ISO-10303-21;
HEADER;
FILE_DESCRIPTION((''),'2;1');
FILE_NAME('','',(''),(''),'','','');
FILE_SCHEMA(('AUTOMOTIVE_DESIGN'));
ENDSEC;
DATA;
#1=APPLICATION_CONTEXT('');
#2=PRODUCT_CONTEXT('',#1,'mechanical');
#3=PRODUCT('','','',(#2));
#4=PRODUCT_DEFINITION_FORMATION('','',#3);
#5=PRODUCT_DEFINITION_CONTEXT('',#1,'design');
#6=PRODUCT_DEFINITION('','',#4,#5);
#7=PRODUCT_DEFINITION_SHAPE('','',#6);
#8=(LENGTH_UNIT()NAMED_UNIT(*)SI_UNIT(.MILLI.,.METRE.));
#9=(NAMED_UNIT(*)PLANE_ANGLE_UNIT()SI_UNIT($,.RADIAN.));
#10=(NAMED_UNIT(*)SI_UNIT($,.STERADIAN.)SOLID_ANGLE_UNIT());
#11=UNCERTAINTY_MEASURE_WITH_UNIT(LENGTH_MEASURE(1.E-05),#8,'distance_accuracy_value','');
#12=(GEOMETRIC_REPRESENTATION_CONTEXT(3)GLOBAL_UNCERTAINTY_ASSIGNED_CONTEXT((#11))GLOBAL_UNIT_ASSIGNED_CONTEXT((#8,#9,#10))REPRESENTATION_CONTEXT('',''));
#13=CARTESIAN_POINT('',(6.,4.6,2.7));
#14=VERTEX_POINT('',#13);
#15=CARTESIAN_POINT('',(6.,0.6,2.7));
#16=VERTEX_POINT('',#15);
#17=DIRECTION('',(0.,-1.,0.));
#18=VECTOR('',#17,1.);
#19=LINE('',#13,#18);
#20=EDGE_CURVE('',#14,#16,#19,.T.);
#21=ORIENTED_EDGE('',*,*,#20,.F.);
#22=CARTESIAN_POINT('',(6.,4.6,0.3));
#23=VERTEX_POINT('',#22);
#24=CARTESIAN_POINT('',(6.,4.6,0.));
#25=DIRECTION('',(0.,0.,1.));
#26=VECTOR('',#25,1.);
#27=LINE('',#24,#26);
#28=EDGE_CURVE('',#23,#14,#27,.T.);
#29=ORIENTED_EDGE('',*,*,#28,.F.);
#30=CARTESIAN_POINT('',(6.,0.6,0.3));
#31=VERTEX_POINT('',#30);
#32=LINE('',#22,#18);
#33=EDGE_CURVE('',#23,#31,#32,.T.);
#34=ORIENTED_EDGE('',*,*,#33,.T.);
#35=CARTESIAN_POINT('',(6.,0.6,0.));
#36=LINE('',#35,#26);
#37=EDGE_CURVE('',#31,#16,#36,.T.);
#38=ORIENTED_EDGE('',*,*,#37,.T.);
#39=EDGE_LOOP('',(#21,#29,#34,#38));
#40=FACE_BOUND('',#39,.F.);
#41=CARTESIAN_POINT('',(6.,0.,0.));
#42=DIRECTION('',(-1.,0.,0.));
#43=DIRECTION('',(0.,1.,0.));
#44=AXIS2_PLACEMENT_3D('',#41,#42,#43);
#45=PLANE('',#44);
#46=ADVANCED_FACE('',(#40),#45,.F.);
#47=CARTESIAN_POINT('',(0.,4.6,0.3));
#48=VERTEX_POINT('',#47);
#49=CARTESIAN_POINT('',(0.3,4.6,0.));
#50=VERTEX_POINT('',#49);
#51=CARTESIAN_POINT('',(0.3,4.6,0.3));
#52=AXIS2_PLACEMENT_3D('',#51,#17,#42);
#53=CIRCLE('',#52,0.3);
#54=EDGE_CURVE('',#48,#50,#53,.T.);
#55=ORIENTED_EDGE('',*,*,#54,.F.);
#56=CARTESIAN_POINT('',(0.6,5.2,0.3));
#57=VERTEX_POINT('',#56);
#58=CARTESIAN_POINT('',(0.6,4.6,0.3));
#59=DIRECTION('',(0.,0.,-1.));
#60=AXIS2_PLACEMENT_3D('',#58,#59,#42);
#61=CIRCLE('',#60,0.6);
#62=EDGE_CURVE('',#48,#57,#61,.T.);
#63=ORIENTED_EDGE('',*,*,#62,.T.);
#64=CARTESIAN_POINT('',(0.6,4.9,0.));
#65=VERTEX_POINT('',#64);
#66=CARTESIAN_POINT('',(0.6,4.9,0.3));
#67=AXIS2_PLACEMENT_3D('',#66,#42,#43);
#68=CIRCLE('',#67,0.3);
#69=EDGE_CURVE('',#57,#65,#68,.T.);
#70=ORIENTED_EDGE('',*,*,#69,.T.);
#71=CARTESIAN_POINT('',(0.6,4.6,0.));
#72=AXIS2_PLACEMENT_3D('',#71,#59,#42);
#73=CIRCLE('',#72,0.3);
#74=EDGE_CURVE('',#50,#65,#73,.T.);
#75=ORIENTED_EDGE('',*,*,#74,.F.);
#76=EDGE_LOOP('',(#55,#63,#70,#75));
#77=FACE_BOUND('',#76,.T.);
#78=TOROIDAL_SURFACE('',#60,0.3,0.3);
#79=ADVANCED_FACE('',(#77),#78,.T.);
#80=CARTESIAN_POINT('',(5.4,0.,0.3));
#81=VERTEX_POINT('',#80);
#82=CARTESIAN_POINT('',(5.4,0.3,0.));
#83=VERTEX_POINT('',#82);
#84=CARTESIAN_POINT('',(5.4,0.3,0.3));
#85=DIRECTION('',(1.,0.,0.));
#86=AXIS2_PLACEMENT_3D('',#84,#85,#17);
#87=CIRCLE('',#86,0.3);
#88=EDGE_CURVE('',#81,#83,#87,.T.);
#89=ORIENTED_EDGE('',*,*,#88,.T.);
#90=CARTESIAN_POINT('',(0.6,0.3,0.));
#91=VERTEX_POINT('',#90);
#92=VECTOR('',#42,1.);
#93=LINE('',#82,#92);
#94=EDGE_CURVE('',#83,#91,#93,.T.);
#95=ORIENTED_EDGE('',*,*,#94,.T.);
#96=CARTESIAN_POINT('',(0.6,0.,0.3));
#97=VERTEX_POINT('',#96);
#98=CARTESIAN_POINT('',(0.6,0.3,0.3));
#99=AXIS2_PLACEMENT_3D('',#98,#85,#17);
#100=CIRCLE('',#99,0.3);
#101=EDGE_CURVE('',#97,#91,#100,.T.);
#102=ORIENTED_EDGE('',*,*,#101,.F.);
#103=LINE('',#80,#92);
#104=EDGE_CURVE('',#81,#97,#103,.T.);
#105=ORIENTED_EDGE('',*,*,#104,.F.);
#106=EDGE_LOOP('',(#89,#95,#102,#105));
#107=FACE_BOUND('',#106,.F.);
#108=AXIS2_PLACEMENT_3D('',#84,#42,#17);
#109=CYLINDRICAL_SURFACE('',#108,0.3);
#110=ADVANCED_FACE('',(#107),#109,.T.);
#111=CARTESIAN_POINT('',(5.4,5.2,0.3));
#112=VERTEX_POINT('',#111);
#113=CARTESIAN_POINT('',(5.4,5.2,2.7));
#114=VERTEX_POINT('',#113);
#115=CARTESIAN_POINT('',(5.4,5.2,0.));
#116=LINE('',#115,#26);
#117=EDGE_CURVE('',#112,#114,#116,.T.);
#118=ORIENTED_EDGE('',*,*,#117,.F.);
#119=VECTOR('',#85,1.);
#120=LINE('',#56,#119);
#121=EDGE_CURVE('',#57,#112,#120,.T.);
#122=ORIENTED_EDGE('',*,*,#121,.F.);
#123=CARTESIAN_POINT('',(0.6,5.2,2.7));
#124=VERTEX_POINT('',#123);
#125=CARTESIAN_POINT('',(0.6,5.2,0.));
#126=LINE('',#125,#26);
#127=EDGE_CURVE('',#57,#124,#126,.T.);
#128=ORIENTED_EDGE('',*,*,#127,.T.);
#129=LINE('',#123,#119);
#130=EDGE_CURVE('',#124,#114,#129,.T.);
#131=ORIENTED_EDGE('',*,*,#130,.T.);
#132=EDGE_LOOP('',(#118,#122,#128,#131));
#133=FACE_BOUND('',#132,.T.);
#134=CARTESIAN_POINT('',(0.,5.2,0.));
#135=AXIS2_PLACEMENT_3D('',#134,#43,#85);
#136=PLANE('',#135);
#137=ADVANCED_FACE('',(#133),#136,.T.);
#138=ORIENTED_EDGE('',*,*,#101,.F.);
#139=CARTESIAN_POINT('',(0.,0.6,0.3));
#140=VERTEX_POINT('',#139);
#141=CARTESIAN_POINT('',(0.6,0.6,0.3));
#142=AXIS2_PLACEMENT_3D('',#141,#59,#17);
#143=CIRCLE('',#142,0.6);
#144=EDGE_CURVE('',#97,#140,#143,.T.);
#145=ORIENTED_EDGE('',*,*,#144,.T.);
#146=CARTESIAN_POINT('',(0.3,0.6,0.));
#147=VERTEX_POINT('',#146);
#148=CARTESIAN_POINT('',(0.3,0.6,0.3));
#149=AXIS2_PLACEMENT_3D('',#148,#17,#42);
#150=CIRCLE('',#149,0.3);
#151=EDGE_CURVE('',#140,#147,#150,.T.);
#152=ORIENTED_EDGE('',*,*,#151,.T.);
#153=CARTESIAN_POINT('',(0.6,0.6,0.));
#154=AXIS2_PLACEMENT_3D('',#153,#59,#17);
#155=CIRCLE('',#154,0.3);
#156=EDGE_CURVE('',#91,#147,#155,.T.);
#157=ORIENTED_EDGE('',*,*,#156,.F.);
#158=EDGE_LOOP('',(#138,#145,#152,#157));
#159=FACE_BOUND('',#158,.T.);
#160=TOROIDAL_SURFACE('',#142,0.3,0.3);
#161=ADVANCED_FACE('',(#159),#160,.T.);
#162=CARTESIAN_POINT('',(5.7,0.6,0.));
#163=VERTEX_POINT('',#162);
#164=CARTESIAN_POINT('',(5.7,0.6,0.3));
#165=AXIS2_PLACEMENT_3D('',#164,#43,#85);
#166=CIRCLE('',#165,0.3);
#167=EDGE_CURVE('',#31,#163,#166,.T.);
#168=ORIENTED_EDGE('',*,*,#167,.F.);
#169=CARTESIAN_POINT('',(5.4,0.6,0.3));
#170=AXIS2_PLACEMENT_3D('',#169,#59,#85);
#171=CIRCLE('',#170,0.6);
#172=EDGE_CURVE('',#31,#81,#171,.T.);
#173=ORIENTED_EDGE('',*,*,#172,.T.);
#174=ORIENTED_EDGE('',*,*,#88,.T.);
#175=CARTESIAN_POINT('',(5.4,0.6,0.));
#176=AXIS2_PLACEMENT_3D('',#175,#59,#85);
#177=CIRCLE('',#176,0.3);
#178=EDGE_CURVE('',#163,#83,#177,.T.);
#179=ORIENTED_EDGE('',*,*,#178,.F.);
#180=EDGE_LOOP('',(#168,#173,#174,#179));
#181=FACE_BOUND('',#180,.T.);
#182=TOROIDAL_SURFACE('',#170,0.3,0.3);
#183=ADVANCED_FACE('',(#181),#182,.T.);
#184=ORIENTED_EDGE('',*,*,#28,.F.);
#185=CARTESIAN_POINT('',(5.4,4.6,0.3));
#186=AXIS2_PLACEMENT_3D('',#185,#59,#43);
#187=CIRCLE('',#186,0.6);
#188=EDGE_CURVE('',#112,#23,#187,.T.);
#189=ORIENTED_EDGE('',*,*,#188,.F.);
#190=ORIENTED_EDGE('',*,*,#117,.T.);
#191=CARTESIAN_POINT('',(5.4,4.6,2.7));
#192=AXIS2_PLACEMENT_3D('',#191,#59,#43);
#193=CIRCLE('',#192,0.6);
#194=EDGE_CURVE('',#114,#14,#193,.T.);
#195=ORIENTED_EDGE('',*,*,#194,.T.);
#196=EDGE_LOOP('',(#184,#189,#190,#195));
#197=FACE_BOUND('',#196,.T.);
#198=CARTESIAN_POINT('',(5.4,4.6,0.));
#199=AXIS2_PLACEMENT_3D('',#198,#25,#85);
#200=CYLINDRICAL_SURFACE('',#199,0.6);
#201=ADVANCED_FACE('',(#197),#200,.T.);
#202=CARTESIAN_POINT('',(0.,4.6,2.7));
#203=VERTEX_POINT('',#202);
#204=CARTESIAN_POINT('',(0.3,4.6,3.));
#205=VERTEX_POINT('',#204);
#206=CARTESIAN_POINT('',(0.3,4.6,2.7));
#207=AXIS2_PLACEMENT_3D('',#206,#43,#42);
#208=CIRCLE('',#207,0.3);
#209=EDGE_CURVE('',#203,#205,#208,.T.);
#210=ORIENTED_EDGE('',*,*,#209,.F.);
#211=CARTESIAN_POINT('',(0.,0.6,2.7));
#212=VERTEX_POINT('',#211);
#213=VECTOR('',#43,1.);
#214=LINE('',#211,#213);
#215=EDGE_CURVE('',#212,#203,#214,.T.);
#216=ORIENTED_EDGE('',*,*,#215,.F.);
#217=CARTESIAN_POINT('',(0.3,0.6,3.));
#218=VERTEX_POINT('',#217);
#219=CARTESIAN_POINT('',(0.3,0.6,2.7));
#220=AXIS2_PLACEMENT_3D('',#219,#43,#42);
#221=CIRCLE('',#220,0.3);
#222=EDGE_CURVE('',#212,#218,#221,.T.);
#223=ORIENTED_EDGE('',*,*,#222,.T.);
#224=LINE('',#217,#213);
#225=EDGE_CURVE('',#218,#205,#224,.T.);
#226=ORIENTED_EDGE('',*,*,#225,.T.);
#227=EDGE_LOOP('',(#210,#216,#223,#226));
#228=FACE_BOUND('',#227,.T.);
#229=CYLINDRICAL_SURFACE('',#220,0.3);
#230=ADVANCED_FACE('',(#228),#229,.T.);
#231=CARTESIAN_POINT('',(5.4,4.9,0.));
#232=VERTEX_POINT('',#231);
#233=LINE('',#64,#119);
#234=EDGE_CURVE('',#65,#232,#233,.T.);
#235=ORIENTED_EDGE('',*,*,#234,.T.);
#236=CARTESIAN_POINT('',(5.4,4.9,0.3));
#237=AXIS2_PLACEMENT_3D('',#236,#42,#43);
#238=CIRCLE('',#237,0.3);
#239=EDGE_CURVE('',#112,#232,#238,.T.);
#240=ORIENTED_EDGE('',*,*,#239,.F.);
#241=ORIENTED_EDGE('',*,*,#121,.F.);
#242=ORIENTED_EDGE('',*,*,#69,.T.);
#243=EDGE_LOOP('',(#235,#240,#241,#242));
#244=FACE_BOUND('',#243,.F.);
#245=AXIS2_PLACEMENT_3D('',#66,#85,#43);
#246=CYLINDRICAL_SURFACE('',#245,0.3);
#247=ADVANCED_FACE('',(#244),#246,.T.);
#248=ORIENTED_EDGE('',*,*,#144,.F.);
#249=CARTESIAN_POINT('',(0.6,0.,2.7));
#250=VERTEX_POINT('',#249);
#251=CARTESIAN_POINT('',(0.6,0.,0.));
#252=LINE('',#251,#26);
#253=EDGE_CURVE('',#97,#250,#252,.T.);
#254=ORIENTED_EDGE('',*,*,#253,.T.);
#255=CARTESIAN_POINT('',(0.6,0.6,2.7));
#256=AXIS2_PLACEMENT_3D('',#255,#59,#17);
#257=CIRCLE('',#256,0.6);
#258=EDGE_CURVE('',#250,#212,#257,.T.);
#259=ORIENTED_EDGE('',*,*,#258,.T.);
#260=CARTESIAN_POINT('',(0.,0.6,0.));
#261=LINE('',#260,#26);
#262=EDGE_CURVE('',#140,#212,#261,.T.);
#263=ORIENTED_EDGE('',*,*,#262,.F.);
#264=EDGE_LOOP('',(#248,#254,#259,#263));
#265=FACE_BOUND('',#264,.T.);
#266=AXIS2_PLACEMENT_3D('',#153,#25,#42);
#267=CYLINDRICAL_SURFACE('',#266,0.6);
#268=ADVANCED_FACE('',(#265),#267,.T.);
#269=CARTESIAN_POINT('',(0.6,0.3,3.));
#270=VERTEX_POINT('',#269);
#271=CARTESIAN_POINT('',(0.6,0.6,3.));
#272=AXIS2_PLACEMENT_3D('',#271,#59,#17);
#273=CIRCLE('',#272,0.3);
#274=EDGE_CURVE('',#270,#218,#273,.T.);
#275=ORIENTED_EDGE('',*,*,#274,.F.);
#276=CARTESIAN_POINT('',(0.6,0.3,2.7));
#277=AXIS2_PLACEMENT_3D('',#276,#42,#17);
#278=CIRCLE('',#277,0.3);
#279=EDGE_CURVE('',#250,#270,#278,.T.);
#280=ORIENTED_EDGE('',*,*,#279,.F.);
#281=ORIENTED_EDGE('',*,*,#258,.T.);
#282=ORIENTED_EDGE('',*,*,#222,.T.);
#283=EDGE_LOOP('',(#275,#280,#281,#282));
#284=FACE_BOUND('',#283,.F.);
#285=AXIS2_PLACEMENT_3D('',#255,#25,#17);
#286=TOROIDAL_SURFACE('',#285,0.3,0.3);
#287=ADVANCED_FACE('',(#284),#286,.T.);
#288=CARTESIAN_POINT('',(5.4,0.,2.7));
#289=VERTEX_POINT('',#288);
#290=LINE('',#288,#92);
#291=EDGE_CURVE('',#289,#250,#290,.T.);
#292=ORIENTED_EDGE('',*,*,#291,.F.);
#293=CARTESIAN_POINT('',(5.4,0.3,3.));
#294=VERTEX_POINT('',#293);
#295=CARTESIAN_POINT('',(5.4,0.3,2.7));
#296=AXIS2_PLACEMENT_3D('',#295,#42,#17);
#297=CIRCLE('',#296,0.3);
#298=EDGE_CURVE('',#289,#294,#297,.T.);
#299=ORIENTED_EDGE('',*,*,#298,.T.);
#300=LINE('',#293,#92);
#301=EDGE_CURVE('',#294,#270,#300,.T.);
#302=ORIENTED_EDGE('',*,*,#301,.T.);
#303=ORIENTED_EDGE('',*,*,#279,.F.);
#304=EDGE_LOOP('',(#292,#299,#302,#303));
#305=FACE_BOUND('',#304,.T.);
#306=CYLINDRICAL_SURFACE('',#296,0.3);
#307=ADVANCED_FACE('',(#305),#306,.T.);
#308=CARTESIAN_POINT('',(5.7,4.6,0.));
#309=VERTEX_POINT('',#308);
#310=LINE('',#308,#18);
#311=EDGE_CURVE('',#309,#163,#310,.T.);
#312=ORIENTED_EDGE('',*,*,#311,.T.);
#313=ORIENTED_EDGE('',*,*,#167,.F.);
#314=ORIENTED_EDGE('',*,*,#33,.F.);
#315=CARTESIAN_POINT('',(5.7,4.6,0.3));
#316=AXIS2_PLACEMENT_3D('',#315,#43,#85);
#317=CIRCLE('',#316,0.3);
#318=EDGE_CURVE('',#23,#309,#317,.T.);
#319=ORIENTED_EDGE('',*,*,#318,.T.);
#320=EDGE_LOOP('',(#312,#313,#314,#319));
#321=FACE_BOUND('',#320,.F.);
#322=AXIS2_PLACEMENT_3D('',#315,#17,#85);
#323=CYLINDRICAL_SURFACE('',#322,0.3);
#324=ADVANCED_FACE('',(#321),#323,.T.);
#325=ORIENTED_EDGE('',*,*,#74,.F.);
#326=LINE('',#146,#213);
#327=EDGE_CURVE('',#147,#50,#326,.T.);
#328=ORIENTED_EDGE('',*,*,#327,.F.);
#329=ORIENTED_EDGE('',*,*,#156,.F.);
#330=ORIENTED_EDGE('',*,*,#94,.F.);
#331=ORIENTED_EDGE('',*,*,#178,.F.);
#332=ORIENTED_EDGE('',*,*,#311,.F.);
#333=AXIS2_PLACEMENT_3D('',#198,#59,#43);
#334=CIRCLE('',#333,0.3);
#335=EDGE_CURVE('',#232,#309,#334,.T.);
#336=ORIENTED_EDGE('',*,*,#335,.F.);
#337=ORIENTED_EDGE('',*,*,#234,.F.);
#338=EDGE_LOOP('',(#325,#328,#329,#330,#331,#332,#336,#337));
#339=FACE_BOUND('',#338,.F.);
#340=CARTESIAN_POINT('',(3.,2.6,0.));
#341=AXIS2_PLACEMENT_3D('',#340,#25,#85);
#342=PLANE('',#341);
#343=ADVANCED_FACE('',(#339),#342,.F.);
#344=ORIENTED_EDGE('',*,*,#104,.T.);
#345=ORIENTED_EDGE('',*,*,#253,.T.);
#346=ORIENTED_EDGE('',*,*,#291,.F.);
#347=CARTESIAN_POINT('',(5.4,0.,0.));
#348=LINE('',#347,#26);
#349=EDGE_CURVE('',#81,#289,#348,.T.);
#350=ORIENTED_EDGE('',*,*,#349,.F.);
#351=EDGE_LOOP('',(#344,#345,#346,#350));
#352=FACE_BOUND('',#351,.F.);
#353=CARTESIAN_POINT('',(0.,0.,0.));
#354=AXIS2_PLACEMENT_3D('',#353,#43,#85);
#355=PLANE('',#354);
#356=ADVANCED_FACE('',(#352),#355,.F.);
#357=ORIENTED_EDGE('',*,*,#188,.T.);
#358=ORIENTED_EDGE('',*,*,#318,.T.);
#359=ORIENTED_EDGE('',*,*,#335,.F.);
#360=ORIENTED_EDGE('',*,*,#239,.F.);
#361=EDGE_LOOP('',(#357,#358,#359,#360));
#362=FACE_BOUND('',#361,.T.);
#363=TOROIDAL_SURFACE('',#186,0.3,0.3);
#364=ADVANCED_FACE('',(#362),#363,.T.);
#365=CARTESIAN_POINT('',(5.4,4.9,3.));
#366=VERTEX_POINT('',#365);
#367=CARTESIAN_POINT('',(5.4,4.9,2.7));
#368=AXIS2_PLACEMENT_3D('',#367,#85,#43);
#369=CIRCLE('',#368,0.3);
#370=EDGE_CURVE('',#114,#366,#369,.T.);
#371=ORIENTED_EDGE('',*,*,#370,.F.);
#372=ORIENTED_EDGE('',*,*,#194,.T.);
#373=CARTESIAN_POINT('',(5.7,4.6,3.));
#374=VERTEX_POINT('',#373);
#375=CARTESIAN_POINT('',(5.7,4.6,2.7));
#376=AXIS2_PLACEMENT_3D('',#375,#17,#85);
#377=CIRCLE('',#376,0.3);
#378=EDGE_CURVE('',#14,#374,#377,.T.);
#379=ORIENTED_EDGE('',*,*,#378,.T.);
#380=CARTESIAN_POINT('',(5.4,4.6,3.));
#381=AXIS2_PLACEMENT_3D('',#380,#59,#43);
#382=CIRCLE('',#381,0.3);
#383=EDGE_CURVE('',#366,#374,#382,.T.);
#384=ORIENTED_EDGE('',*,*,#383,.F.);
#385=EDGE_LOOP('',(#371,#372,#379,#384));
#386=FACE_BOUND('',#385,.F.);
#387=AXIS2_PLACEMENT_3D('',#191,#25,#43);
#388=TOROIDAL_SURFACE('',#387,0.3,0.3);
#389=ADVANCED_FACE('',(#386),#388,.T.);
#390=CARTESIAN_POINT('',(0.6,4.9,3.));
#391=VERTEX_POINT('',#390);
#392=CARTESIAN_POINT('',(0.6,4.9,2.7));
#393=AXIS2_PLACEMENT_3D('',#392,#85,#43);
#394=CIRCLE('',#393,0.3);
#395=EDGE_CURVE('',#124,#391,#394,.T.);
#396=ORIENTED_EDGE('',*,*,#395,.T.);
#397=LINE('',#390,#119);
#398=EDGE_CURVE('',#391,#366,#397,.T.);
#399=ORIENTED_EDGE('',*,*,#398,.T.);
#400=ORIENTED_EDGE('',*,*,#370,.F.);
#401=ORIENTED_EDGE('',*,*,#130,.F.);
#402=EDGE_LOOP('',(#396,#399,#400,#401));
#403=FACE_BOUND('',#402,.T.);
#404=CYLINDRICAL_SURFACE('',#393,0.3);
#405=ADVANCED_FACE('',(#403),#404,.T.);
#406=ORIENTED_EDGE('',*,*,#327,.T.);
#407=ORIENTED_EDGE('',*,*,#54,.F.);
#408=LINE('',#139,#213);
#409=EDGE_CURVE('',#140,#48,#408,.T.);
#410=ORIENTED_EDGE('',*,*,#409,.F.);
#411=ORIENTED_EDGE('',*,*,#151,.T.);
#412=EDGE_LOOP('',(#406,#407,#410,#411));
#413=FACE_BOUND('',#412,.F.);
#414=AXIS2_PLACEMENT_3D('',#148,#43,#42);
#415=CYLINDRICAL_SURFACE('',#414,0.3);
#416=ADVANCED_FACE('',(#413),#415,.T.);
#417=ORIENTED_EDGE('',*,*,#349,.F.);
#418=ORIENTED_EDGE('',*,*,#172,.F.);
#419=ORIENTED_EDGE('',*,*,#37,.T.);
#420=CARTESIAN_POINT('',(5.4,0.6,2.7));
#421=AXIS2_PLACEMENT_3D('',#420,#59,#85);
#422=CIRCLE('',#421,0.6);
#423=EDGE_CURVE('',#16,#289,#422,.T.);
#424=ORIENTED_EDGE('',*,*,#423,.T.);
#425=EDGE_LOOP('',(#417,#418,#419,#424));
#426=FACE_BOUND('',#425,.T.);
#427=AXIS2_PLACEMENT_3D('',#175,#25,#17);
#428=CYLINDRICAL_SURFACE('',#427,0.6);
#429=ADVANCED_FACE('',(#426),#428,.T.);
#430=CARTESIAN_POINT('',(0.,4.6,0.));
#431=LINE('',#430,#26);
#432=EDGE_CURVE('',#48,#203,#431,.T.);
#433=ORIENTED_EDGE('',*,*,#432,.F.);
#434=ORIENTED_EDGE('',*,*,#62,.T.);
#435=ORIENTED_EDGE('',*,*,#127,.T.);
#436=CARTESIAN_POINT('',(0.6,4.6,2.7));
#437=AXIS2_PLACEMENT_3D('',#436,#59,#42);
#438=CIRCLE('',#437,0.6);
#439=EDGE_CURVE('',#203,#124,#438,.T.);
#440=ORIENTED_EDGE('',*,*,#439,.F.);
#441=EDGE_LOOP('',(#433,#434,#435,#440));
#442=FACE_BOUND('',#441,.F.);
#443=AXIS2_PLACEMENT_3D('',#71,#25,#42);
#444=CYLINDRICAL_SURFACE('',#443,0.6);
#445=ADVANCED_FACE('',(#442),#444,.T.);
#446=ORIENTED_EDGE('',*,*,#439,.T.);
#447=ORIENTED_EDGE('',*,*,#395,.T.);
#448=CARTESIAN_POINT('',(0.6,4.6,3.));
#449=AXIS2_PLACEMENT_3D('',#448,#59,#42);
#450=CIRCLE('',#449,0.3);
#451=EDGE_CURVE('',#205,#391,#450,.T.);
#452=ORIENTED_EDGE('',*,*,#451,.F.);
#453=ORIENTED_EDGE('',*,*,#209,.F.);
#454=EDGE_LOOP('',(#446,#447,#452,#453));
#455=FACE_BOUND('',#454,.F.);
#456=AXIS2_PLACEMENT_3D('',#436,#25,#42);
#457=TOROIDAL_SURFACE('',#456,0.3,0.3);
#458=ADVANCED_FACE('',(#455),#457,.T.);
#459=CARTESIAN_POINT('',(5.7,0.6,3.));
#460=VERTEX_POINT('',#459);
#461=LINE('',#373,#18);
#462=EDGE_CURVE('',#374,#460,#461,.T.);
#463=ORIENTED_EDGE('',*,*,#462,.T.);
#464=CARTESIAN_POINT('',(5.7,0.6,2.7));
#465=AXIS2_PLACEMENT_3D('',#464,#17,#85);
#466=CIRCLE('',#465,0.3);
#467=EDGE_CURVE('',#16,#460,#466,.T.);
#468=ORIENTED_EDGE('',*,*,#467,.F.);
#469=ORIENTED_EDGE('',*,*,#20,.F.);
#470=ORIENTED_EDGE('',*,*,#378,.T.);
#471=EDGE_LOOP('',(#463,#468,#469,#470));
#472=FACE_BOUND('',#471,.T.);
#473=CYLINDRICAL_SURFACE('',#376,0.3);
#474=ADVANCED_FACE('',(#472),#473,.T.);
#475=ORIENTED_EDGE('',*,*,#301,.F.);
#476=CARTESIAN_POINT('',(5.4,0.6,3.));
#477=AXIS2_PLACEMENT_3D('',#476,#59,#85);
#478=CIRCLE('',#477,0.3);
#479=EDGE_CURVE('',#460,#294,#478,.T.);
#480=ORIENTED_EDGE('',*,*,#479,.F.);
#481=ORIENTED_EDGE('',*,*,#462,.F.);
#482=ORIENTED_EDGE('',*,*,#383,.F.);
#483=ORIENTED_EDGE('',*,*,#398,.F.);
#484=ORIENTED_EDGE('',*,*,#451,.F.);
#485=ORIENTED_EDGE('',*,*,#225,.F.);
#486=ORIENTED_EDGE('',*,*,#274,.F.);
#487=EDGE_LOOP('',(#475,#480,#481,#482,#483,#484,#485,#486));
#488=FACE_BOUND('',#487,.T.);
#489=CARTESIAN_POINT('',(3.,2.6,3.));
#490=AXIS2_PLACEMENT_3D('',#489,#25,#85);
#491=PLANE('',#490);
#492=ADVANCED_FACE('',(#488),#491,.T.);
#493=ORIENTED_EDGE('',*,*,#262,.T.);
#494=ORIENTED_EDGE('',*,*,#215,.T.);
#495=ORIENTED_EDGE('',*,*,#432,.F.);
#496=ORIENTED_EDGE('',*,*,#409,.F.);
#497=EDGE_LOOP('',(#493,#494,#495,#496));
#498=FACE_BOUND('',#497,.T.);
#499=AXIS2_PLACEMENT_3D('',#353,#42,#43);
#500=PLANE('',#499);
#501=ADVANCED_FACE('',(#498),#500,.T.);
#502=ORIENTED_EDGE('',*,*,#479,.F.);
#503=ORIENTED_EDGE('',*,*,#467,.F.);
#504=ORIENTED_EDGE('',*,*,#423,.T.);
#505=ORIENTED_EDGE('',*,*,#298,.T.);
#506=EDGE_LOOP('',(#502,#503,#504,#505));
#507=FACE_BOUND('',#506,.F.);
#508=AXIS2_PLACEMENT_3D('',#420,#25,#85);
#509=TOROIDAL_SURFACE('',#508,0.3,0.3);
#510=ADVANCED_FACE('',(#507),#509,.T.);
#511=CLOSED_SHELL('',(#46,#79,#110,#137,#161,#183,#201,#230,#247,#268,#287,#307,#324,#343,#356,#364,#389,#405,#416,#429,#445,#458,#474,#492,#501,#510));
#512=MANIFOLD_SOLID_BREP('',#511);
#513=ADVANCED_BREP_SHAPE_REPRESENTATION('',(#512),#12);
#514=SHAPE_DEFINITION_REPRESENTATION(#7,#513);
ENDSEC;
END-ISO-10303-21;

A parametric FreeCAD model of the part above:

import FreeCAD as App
import Part
import Sketcher

V = App.Vector


def edges_at(feature, points):
    """Names of the edges that pass closest to the given points."""
    edges = feature.Shape.Edges
    near = lambda p: min(range(len(edges)), key=lambda i: edges[i].distToShape(Part.Vertex(*p))[0])
    return sorted({f"Edge{near(p) + 1}" for p in points})

doc = App.newDocument("Part")
body = doc.addObject("PartDesign::Body", "Body")

# Sketch on XY plane
sketch1 = body.newObject("Sketcher::SketchObject", "Sketch")
sketch1.AttachmentSupport = (doc.getObject("XY_Plane"), [""])
sketch1.MapMode = "FlatFace"
sketch1.addGeometry(Part.LineSegment(V(0, 5.2, 0), V(0, 0, 0)), False)
sketch1.addGeometry(Part.LineSegment(V(0, 0, 0), V(6, 0, 0)), False)
sketch1.addGeometry(Part.LineSegment(V(6, 0, 0), V(6, 5.2, 0)), False)
sketch1.addGeometry(Part.LineSegment(V(6, 5.2, 0), V(0, 5.2, 0)), False)
sketch1.addConstraint(Sketcher.Constraint("Coincident", 0, 2, 1, 1))
sketch1.addConstraint(Sketcher.Constraint("Coincident", 1, 2, 2, 1))
sketch1.addConstraint(Sketcher.Constraint("Coincident", 2, 2, 3, 1))
sketch1.addConstraint(Sketcher.Constraint("Coincident", 3, 2, 0, 1))
sketch1.addConstraint(Sketcher.Constraint("Vertical", 0))
sketch1.addConstraint(Sketcher.Constraint("Horizontal", 1))
sketch1.addConstraint(Sketcher.Constraint("Vertical", 2))
sketch1.addConstraint(Sketcher.Constraint("Horizontal", 3))
sketch1.addConstraint(Sketcher.Constraint("Coincident", 0, 2, -1, 1))
sketch1.addConstraint(Sketcher.Constraint("DistanceX", 1, 1, 1, 2, 6.0))
sketch1.addConstraint(Sketcher.Constraint("DistanceY", 0, 2, 0, 1, 5.2))
pad1 = body.newObject("PartDesign::Pad", "Pad")
pad1.Profile = sketch1
pad1.Length = 3
doc.recompute()

fillet = body.newObject("PartDesign::Fillet", "Fillet")
fillet.Base = (pad1, edges_at(pad1, [
    (6, 5.2, 1.5),
    (6, 0, 1.5),
    (0, 0, 1.5),
    (0, 5.2, 1.5),
]))
fillet.Radius = 0.6
doc.recompute()

fillet2 = body.newObject("PartDesign::Fillet", "Fillet001")
fillet2.Base = (fillet, edges_at(fillet, [
    (0, 2.6, 3),
    (0.176, 5.024, 3),
    (0.176, 0.176, 3),
    (3, 5.2, 3),
    (3, 0, 3),
    (5.824, 5.024, 3),
    (5.824, 0.176, 3),
    (6, 2.6, 3),
    (0, 2.6, 0),
    (0.176, 5.024, 0),
    (0.176, 0.176, 0),
    (3, 5.2, 0),
    (3, 0, 0),
    (5.824, 5.024, 0),
    (5.824, 0.176, 0),
    (6, 2.6, 0),
]))
fillet2.Radius = 0.3

doc.recompute()
